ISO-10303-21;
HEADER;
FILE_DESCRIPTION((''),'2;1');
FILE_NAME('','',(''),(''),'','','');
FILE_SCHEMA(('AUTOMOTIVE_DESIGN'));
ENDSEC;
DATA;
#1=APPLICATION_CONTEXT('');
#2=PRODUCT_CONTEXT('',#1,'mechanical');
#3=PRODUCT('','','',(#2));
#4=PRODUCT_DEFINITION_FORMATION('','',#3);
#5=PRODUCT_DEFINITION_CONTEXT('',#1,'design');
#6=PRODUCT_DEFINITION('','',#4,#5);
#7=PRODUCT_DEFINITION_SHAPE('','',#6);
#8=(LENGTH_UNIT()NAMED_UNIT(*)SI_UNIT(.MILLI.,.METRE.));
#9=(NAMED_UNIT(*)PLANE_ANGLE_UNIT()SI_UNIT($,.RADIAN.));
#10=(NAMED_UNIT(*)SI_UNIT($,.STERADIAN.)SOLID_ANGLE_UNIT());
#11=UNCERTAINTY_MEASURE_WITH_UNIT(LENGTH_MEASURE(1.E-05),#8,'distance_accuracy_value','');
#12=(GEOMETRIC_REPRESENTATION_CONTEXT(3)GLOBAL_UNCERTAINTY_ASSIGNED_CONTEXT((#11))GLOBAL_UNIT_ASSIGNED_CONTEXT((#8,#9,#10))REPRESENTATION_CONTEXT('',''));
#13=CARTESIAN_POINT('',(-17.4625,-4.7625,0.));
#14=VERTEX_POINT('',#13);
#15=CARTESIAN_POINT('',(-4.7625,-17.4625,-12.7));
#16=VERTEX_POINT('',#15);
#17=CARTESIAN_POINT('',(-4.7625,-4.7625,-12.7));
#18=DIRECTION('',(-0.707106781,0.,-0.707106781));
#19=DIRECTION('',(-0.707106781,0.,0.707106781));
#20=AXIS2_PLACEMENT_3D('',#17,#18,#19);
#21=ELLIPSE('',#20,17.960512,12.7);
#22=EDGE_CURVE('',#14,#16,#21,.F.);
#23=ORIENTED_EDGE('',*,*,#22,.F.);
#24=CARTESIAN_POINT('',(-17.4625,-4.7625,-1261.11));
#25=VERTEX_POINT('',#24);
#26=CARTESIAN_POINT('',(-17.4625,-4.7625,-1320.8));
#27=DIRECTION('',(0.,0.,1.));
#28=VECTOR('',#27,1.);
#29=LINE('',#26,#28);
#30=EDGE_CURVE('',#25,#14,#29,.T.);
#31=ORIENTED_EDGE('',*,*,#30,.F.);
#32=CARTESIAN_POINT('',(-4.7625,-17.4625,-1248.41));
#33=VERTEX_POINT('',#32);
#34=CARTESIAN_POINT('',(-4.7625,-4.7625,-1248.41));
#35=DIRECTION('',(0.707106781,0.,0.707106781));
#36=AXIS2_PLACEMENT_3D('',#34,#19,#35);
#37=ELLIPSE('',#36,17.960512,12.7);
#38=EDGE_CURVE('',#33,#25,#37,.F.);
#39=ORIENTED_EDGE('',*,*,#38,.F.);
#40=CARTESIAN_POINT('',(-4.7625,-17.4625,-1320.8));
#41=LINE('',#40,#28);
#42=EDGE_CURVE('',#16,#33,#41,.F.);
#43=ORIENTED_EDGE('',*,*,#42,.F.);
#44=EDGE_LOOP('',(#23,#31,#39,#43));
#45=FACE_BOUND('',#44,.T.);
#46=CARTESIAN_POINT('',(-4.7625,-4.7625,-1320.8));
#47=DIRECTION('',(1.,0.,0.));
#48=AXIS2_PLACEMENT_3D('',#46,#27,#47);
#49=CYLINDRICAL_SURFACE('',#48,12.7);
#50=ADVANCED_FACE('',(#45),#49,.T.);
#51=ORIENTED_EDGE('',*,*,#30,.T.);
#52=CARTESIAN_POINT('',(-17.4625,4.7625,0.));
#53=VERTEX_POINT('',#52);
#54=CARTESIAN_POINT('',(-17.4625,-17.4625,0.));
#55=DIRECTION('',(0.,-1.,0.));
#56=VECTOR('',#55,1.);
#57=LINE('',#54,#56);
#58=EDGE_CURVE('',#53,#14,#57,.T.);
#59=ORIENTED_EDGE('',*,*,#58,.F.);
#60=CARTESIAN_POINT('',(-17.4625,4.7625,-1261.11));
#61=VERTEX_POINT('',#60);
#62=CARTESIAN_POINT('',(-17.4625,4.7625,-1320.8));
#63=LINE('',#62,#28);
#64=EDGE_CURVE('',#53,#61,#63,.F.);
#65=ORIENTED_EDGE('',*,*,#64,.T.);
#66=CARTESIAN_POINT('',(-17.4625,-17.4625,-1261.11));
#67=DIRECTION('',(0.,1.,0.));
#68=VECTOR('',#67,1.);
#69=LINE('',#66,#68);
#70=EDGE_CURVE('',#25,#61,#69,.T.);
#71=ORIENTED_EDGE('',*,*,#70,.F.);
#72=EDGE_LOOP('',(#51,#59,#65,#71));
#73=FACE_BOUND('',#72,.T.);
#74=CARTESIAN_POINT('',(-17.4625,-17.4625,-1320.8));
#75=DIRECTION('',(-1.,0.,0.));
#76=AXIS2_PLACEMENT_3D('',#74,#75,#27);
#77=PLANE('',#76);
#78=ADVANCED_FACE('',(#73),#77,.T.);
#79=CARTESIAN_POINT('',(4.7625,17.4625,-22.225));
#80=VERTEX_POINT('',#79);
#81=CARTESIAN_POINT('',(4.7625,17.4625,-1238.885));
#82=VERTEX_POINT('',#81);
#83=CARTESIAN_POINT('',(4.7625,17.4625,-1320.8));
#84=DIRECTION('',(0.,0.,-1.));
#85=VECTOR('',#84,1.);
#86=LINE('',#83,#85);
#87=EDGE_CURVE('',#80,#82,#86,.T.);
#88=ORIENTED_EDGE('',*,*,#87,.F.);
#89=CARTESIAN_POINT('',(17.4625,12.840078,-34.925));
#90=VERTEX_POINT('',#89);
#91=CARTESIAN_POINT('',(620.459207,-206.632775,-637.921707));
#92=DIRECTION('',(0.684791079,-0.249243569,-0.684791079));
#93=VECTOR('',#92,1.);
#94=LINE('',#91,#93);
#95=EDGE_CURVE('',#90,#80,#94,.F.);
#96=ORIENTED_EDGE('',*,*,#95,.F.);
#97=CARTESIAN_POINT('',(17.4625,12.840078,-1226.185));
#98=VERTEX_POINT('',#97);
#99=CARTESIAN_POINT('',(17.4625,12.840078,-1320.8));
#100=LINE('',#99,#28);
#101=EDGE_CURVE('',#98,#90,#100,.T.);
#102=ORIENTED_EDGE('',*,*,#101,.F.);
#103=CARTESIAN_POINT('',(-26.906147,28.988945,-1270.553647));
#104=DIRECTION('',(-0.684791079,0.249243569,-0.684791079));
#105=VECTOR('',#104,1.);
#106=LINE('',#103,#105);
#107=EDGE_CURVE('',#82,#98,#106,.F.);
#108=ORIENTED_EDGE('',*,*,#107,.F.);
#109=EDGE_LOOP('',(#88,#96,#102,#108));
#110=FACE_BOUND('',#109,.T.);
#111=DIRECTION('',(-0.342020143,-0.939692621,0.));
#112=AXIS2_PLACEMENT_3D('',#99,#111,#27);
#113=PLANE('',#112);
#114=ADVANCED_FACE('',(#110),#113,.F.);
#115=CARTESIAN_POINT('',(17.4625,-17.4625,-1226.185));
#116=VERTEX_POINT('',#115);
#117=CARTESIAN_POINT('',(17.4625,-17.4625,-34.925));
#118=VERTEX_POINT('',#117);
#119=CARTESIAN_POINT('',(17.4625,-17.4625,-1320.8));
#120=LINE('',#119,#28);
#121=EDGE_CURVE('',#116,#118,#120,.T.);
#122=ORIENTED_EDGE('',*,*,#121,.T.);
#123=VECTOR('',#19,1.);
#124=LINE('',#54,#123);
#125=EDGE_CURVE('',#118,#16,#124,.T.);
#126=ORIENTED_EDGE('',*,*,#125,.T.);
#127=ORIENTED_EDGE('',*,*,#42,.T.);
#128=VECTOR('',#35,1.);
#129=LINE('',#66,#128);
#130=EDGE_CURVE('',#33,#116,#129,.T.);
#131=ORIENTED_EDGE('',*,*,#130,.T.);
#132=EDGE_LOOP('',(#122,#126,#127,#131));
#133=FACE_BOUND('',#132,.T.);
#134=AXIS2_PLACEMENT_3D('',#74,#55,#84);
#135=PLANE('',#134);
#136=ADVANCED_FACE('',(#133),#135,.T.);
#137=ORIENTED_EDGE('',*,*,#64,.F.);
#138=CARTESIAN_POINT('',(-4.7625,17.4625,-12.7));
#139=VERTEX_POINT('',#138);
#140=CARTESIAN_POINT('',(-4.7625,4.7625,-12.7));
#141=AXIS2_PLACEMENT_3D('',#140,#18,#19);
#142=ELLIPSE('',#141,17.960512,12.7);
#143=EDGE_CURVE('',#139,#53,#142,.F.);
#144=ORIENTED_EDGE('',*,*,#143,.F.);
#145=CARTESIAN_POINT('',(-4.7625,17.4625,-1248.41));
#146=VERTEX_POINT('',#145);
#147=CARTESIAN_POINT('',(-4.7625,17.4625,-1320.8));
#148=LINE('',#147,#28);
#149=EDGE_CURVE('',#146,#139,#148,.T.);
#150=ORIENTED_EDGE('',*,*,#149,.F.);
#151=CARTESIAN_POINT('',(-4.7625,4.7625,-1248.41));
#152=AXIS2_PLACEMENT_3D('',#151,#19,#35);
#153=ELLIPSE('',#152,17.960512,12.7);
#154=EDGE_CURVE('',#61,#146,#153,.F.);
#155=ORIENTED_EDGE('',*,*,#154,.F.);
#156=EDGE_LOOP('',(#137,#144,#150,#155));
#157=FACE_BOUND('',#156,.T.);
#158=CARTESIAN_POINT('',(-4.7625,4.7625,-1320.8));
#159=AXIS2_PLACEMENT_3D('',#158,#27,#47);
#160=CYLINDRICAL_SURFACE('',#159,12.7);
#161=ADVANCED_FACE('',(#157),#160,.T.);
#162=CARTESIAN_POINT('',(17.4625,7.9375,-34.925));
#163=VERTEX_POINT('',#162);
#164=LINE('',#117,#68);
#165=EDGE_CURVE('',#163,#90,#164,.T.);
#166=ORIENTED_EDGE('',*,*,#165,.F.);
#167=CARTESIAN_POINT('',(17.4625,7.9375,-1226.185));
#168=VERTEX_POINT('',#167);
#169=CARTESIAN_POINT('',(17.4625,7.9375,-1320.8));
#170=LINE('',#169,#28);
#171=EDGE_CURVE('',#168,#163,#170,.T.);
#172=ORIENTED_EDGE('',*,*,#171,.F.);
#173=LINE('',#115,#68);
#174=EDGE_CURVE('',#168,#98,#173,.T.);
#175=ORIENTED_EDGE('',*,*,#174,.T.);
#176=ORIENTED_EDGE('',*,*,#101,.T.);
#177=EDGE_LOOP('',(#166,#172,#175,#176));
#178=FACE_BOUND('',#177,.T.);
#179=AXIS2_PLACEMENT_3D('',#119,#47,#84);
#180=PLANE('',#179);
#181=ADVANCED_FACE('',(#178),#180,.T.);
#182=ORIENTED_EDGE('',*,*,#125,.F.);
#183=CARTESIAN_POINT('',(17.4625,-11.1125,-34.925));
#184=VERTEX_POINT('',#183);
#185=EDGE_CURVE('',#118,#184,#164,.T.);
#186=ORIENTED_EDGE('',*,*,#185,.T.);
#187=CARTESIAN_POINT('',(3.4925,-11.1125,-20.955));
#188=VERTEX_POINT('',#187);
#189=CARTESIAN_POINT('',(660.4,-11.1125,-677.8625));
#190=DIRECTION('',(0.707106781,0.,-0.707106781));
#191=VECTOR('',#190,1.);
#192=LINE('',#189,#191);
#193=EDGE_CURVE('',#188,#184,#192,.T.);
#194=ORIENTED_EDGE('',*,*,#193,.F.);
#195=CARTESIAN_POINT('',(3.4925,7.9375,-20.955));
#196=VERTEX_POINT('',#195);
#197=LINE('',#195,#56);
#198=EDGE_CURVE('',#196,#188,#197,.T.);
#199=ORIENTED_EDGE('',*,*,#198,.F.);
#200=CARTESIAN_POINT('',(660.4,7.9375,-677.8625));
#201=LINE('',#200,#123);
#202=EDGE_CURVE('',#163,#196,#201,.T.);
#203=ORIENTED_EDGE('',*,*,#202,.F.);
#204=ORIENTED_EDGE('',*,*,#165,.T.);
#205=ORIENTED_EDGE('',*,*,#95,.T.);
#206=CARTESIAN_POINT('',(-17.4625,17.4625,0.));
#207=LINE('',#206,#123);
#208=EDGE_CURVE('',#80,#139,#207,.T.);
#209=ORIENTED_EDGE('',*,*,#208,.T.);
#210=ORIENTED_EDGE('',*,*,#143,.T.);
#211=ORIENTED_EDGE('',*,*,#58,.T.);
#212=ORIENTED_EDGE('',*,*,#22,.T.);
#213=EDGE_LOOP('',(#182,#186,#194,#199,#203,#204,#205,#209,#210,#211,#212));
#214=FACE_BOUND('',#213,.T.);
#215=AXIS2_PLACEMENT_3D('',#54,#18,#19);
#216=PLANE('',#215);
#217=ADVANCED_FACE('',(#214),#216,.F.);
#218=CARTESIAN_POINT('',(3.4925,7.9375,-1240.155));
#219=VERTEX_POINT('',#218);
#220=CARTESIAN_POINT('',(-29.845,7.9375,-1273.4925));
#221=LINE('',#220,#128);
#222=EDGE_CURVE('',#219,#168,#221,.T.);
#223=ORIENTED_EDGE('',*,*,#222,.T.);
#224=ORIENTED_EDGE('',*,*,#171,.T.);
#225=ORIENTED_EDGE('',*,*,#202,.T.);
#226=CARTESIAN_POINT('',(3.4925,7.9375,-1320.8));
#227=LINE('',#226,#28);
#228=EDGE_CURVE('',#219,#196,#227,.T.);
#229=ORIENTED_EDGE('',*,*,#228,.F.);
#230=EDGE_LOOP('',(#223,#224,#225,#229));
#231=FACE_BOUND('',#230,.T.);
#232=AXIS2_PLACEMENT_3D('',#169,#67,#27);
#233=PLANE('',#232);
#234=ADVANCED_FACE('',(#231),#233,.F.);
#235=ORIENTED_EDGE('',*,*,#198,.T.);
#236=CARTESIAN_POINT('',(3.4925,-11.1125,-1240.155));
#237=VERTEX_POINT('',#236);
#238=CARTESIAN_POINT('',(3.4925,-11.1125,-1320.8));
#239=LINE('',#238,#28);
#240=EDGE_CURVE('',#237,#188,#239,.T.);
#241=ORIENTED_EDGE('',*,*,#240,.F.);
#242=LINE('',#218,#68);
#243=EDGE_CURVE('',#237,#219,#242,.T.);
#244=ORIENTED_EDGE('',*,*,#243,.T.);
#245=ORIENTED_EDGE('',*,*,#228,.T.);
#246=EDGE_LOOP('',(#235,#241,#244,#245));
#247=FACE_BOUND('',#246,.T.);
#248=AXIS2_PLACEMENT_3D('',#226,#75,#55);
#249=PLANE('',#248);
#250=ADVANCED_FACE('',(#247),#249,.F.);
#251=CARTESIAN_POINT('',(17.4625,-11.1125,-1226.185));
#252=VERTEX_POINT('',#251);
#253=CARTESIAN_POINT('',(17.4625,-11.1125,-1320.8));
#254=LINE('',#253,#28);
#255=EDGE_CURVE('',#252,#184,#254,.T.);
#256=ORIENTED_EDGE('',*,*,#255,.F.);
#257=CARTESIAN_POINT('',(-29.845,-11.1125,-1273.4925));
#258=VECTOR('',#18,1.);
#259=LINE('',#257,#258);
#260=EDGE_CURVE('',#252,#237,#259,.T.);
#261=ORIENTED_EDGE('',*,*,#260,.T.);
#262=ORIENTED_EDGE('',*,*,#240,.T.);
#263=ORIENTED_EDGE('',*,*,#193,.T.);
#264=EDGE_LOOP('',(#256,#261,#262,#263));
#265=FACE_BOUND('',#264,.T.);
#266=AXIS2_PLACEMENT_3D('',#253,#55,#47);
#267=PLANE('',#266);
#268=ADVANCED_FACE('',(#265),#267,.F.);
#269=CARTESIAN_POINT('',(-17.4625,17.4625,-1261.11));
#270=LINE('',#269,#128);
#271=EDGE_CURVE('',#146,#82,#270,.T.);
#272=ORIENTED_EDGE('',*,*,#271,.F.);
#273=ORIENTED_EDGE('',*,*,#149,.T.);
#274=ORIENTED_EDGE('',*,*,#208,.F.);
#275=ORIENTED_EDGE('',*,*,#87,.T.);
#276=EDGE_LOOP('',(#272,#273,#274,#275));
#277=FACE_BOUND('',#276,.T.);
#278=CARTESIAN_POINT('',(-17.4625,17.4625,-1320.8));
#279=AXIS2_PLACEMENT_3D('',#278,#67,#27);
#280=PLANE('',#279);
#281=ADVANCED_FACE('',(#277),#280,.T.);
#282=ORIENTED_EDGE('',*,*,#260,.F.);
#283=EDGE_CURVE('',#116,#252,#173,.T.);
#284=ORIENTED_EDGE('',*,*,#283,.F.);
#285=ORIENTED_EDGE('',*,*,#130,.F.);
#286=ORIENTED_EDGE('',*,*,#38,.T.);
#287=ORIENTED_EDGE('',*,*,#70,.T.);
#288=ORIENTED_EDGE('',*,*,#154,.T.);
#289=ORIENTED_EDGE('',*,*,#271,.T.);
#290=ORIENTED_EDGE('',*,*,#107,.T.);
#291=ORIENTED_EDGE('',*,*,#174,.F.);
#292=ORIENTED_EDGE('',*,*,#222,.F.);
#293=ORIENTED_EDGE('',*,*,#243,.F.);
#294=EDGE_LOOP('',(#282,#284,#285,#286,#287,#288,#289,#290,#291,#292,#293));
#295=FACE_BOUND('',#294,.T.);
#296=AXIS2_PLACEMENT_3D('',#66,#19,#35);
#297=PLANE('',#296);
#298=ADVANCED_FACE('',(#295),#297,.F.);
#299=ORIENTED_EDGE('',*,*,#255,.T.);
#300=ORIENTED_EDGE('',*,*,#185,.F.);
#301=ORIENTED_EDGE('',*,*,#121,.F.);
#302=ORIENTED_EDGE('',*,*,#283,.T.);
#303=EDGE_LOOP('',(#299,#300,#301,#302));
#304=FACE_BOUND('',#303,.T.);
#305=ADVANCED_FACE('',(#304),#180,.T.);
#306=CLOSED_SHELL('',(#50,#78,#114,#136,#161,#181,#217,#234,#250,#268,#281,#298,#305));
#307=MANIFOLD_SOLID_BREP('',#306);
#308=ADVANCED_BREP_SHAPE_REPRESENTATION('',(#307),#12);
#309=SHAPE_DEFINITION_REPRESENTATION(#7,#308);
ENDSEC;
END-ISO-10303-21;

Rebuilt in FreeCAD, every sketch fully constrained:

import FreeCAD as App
import Part
import Sketcher
Q = App.Units.Quantity


def edges_at(feature, points):
    """Names of the edges that pass closest to the given points."""
    edges = feature.Shape.Edges
    near = lambda p: min(range(len(edges)), key=lambda i: edges[i].distToShape(Part.Vertex(*p))[0])
    return sorted({f"Edge{near(p) + 1}" for p in points})

doc = App.newDocument("Part")
params = doc.addObject("Spreadsheet::Sheet", "Params")
for row, (alias, value) in enumerate([
    ("sketch1_width", "1.375 in"),
    ("pad1_length", "52 in"),
    ("sketch2_width", "0.55 in"),
    ("sketch2_height", "0.75 in"),
    ("fillet_radius", "0.5 in"),
    ("chamfer_size", "0.5 in"),
    ("chamfer_size2", "4.622422 mm"),
    ("sketch3_height", "2.35 in"),
], start=1):
    params.set(f"A{row}", alias)
    params.set(f"B{row}", "=" + value)
    params.setAlias(f"B{row}", alias)

body = doc.addObject("PartDesign::Body", "Body")

sketch1 = body.newObject("Sketcher::SketchObject", "Sketch")
sketch1.AttachmentSupport = (doc.getObject("XY_Plane"), [""])
sketch1.MapMode = "FlatFace"
sketch1.addGeometry([
    Part.LineSegment(App.Vector(-17, 17, 0), App.Vector(-17, -17, 0)),
    Part.LineSegment(App.Vector(-17, -17, 0), App.Vector(17, -17, 0)),
    Part.LineSegment(App.Vector(17, -17, 0), App.Vector(17, 17, 0)),
    Part.LineSegment(App.Vector(17, 17, 0), App.Vector(-17, 17, 0)),
], False)
sketch1.addConstraint([
    Sketcher.Constraint("Coincident", 0, 2, 1, 1),
    Sketcher.Constraint("Coincident", 1, 2, 2, 1),
    Sketcher.Constraint("Coincident", 2, 2, 3, 1),
    Sketcher.Constraint("Coincident", 3, 2, 0, 1),
    Sketcher.Constraint("Vertical", 0),
    Sketcher.Constraint("Horizontal", 1),
    Sketcher.Constraint("Vertical", 2),
    Sketcher.Constraint("Horizontal", 3),
    Sketcher.Constraint("Symmetric", 0, 2, 2, 2, -1, 1),
    Sketcher.Constraint("Equal", 3, 0),
    Sketcher.Constraint("DistanceX", 1, 1, 1, 2, Q("1.375 in")),
])
sketch1.setExpression("Constraints[10]", "Params.sketch1_width")
pad1 = body.newObject("PartDesign::Pad", "Pad")
pad1.Profile = sketch1
pad1.setExpression("Length", "Params.pad1_length")
pad1.Reversed = True

sketch2 = body.newObject("Sketcher::SketchObject", "Sketch001")
sketch2.AttachmentSupport = (doc.getObject("XY_Plane"), [""])
sketch2.MapMode = "FlatFace"
sketch2.addGeometry([
    Part.LineSegment(App.Vector(3, 8, 0), App.Vector(3, -11, 0)),
    Part.LineSegment(App.Vector(3, -11, 0), App.Vector(17, -11, 0)),
    Part.LineSegment(App.Vector(17, -11, 0), App.Vector(17, 8, 0)),
    Part.LineSegment(App.Vector(17, 8, 0), App.Vector(3, 8, 0)),
], False)
sketch2.addConstraint([
    Sketcher.Constraint("Coincident", 0, 2, 1, 1),
    Sketcher.Constraint("Coincident", 1, 2, 2, 1),
    Sketcher.Constraint("Coincident", 2, 2, 3, 1),
    Sketcher.Constraint("Coincident", 3, 2, 0, 1),
    Sketcher.Constraint("Vertical", 0),
    Sketcher.Constraint("Horizontal", 1),
    Sketcher.Constraint("Vertical", 2),
    Sketcher.Constraint("Horizontal", 3),
    Sketcher.Constraint("DistanceX", 1, 1, 1, 2, Q("0.55 in")),
    Sketcher.Constraint("DistanceY", 0, 2, 0, 1, Q("0.75 in")),
    Sketcher.Constraint("DistanceY", 0, 2, -1, 1, Q("0.4375 in")),
    Sketcher.Constraint("DistanceX", -1, 1, 1, 2, Q("0.6875 in")),
])
sketch2.setExpression("Constraints[8]", "Params.sketch2_width")
sketch2.setExpression("Constraints[9]", "Params.sketch2_height")
pocket1 = body.newObject("PartDesign::Pocket", "Pocket")
pocket1.Profile = sketch2
pocket1.Type = "ThroughAll"
doc.recompute()

fillet = body.newObject("PartDesign::Fillet", "Fillet")
fillet.Base = (pocket1, edges_at(pocket1, [(-17.462, -17.462, -660.4), (-17.462, 17.462, -660.4)]))
fillet.setExpression("Radius", "Params.fillet_radius")
doc.recompute()

chamfer = body.newObject("PartDesign::Chamfer", "Chamfer")
chamfer.Base = (fillet, edges_at(fillet, [(17.462, 17.462, -660.4)]))
chamfer.ChamferType = "Two distances"
chamfer.setExpression("Size", "Params.chamfer_size")
chamfer.setExpression("Size2", "Params.chamfer_size2")

sketch3 = body.newObject("Sketcher::SketchObject", "Sketch002")
sketch3.AttachmentSupport = (doc.getObject("XZ_Plane"), [""])
sketch3.MapMode = "FlatFace"
sketch3.AttachmentOffset = App.Placement(App.Vector(0, 0, -0.6875 * 25.4), App.Rotation())
sketch3.addGeometry([
    Part.LineSegment(App.Vector(17, -35, 0), App.Vector(-17, 0, 0)),
    Part.LineSegment(App.Vector(-17, 0, 0), App.Vector(17, 0, 0)),
    Part.LineSegment(App.Vector(17, 0, 0), App.Vector(17, -35, 0)),
    Part.LineSegment(App.Vector(-17, -1261, 0), App.Vector(17, -1226, 0)),
    Part.LineSegment(App.Vector(17, -1226, 0), App.Vector(17, -1321, 0)),
    Part.LineSegment(App.Vector(17, -1321, 0), App.Vector(-17, -1321, 0)),
    Part.LineSegment(App.Vector(-17, -1321, 0), App.Vector(-17, -1261, 0)),
], False)
sketch3.addConstraint([
    Sketcher.Constraint("Coincident", 0, 2, 1, 1),
    Sketcher.Constraint("Coincident", 1, 2, 2, 1),
    Sketcher.Constraint("Coincident", 2, 2, 0, 1),
    Sketcher.Constraint("Coincident", 3, 2, 4, 1),
    Sketcher.Constraint("Coincident", 4, 2, 5, 1),
    Sketcher.Constraint("Coincident", 5, 2, 6, 1),
    Sketcher.Constraint("Coincident", 6, 2, 3, 1),
    Sketcher.Constraint("Horizontal", 1),
    Sketcher.Constraint("Vertical", 2),
    Sketcher.Constraint("Vertical", 4),
    Sketcher.Constraint("Horizontal", 5),
    Sketcher.Constraint("Vertical", 6),
    Sketcher.Constraint("Symmetric", 0, 2, 1, 2, -1, 1),
    Sketcher.Constraint("Perpendicular", 0, 3),
    Sketcher.Constraint("Vertical", 2, 2, 3, 2),
    Sketcher.Constraint("Vertical", 0, 2, 5, 2),
    Sketcher.Constraint("Equal", 5, 2),
    Sketcher.Constraint("DistanceY", 4, 2, -1, 1, Q("52 in")),
    Sketcher.Constraint("DistanceY", 6, 1, 6, 2, Q("2.35 in")),
    Sketcher.Constraint("DistanceY", 3, 2, 2, 2, Q("46.9 in")),
])
sketch3.setExpression("Constraints[18]", "Params.sketch3_height")
pocket2 = body.newObject("PartDesign::Pocket", "Pocket001")
pocket2.Profile = sketch3
pocket2.Type = "ThroughAll"
pocket2.Reversed = True

doc.recompute()
